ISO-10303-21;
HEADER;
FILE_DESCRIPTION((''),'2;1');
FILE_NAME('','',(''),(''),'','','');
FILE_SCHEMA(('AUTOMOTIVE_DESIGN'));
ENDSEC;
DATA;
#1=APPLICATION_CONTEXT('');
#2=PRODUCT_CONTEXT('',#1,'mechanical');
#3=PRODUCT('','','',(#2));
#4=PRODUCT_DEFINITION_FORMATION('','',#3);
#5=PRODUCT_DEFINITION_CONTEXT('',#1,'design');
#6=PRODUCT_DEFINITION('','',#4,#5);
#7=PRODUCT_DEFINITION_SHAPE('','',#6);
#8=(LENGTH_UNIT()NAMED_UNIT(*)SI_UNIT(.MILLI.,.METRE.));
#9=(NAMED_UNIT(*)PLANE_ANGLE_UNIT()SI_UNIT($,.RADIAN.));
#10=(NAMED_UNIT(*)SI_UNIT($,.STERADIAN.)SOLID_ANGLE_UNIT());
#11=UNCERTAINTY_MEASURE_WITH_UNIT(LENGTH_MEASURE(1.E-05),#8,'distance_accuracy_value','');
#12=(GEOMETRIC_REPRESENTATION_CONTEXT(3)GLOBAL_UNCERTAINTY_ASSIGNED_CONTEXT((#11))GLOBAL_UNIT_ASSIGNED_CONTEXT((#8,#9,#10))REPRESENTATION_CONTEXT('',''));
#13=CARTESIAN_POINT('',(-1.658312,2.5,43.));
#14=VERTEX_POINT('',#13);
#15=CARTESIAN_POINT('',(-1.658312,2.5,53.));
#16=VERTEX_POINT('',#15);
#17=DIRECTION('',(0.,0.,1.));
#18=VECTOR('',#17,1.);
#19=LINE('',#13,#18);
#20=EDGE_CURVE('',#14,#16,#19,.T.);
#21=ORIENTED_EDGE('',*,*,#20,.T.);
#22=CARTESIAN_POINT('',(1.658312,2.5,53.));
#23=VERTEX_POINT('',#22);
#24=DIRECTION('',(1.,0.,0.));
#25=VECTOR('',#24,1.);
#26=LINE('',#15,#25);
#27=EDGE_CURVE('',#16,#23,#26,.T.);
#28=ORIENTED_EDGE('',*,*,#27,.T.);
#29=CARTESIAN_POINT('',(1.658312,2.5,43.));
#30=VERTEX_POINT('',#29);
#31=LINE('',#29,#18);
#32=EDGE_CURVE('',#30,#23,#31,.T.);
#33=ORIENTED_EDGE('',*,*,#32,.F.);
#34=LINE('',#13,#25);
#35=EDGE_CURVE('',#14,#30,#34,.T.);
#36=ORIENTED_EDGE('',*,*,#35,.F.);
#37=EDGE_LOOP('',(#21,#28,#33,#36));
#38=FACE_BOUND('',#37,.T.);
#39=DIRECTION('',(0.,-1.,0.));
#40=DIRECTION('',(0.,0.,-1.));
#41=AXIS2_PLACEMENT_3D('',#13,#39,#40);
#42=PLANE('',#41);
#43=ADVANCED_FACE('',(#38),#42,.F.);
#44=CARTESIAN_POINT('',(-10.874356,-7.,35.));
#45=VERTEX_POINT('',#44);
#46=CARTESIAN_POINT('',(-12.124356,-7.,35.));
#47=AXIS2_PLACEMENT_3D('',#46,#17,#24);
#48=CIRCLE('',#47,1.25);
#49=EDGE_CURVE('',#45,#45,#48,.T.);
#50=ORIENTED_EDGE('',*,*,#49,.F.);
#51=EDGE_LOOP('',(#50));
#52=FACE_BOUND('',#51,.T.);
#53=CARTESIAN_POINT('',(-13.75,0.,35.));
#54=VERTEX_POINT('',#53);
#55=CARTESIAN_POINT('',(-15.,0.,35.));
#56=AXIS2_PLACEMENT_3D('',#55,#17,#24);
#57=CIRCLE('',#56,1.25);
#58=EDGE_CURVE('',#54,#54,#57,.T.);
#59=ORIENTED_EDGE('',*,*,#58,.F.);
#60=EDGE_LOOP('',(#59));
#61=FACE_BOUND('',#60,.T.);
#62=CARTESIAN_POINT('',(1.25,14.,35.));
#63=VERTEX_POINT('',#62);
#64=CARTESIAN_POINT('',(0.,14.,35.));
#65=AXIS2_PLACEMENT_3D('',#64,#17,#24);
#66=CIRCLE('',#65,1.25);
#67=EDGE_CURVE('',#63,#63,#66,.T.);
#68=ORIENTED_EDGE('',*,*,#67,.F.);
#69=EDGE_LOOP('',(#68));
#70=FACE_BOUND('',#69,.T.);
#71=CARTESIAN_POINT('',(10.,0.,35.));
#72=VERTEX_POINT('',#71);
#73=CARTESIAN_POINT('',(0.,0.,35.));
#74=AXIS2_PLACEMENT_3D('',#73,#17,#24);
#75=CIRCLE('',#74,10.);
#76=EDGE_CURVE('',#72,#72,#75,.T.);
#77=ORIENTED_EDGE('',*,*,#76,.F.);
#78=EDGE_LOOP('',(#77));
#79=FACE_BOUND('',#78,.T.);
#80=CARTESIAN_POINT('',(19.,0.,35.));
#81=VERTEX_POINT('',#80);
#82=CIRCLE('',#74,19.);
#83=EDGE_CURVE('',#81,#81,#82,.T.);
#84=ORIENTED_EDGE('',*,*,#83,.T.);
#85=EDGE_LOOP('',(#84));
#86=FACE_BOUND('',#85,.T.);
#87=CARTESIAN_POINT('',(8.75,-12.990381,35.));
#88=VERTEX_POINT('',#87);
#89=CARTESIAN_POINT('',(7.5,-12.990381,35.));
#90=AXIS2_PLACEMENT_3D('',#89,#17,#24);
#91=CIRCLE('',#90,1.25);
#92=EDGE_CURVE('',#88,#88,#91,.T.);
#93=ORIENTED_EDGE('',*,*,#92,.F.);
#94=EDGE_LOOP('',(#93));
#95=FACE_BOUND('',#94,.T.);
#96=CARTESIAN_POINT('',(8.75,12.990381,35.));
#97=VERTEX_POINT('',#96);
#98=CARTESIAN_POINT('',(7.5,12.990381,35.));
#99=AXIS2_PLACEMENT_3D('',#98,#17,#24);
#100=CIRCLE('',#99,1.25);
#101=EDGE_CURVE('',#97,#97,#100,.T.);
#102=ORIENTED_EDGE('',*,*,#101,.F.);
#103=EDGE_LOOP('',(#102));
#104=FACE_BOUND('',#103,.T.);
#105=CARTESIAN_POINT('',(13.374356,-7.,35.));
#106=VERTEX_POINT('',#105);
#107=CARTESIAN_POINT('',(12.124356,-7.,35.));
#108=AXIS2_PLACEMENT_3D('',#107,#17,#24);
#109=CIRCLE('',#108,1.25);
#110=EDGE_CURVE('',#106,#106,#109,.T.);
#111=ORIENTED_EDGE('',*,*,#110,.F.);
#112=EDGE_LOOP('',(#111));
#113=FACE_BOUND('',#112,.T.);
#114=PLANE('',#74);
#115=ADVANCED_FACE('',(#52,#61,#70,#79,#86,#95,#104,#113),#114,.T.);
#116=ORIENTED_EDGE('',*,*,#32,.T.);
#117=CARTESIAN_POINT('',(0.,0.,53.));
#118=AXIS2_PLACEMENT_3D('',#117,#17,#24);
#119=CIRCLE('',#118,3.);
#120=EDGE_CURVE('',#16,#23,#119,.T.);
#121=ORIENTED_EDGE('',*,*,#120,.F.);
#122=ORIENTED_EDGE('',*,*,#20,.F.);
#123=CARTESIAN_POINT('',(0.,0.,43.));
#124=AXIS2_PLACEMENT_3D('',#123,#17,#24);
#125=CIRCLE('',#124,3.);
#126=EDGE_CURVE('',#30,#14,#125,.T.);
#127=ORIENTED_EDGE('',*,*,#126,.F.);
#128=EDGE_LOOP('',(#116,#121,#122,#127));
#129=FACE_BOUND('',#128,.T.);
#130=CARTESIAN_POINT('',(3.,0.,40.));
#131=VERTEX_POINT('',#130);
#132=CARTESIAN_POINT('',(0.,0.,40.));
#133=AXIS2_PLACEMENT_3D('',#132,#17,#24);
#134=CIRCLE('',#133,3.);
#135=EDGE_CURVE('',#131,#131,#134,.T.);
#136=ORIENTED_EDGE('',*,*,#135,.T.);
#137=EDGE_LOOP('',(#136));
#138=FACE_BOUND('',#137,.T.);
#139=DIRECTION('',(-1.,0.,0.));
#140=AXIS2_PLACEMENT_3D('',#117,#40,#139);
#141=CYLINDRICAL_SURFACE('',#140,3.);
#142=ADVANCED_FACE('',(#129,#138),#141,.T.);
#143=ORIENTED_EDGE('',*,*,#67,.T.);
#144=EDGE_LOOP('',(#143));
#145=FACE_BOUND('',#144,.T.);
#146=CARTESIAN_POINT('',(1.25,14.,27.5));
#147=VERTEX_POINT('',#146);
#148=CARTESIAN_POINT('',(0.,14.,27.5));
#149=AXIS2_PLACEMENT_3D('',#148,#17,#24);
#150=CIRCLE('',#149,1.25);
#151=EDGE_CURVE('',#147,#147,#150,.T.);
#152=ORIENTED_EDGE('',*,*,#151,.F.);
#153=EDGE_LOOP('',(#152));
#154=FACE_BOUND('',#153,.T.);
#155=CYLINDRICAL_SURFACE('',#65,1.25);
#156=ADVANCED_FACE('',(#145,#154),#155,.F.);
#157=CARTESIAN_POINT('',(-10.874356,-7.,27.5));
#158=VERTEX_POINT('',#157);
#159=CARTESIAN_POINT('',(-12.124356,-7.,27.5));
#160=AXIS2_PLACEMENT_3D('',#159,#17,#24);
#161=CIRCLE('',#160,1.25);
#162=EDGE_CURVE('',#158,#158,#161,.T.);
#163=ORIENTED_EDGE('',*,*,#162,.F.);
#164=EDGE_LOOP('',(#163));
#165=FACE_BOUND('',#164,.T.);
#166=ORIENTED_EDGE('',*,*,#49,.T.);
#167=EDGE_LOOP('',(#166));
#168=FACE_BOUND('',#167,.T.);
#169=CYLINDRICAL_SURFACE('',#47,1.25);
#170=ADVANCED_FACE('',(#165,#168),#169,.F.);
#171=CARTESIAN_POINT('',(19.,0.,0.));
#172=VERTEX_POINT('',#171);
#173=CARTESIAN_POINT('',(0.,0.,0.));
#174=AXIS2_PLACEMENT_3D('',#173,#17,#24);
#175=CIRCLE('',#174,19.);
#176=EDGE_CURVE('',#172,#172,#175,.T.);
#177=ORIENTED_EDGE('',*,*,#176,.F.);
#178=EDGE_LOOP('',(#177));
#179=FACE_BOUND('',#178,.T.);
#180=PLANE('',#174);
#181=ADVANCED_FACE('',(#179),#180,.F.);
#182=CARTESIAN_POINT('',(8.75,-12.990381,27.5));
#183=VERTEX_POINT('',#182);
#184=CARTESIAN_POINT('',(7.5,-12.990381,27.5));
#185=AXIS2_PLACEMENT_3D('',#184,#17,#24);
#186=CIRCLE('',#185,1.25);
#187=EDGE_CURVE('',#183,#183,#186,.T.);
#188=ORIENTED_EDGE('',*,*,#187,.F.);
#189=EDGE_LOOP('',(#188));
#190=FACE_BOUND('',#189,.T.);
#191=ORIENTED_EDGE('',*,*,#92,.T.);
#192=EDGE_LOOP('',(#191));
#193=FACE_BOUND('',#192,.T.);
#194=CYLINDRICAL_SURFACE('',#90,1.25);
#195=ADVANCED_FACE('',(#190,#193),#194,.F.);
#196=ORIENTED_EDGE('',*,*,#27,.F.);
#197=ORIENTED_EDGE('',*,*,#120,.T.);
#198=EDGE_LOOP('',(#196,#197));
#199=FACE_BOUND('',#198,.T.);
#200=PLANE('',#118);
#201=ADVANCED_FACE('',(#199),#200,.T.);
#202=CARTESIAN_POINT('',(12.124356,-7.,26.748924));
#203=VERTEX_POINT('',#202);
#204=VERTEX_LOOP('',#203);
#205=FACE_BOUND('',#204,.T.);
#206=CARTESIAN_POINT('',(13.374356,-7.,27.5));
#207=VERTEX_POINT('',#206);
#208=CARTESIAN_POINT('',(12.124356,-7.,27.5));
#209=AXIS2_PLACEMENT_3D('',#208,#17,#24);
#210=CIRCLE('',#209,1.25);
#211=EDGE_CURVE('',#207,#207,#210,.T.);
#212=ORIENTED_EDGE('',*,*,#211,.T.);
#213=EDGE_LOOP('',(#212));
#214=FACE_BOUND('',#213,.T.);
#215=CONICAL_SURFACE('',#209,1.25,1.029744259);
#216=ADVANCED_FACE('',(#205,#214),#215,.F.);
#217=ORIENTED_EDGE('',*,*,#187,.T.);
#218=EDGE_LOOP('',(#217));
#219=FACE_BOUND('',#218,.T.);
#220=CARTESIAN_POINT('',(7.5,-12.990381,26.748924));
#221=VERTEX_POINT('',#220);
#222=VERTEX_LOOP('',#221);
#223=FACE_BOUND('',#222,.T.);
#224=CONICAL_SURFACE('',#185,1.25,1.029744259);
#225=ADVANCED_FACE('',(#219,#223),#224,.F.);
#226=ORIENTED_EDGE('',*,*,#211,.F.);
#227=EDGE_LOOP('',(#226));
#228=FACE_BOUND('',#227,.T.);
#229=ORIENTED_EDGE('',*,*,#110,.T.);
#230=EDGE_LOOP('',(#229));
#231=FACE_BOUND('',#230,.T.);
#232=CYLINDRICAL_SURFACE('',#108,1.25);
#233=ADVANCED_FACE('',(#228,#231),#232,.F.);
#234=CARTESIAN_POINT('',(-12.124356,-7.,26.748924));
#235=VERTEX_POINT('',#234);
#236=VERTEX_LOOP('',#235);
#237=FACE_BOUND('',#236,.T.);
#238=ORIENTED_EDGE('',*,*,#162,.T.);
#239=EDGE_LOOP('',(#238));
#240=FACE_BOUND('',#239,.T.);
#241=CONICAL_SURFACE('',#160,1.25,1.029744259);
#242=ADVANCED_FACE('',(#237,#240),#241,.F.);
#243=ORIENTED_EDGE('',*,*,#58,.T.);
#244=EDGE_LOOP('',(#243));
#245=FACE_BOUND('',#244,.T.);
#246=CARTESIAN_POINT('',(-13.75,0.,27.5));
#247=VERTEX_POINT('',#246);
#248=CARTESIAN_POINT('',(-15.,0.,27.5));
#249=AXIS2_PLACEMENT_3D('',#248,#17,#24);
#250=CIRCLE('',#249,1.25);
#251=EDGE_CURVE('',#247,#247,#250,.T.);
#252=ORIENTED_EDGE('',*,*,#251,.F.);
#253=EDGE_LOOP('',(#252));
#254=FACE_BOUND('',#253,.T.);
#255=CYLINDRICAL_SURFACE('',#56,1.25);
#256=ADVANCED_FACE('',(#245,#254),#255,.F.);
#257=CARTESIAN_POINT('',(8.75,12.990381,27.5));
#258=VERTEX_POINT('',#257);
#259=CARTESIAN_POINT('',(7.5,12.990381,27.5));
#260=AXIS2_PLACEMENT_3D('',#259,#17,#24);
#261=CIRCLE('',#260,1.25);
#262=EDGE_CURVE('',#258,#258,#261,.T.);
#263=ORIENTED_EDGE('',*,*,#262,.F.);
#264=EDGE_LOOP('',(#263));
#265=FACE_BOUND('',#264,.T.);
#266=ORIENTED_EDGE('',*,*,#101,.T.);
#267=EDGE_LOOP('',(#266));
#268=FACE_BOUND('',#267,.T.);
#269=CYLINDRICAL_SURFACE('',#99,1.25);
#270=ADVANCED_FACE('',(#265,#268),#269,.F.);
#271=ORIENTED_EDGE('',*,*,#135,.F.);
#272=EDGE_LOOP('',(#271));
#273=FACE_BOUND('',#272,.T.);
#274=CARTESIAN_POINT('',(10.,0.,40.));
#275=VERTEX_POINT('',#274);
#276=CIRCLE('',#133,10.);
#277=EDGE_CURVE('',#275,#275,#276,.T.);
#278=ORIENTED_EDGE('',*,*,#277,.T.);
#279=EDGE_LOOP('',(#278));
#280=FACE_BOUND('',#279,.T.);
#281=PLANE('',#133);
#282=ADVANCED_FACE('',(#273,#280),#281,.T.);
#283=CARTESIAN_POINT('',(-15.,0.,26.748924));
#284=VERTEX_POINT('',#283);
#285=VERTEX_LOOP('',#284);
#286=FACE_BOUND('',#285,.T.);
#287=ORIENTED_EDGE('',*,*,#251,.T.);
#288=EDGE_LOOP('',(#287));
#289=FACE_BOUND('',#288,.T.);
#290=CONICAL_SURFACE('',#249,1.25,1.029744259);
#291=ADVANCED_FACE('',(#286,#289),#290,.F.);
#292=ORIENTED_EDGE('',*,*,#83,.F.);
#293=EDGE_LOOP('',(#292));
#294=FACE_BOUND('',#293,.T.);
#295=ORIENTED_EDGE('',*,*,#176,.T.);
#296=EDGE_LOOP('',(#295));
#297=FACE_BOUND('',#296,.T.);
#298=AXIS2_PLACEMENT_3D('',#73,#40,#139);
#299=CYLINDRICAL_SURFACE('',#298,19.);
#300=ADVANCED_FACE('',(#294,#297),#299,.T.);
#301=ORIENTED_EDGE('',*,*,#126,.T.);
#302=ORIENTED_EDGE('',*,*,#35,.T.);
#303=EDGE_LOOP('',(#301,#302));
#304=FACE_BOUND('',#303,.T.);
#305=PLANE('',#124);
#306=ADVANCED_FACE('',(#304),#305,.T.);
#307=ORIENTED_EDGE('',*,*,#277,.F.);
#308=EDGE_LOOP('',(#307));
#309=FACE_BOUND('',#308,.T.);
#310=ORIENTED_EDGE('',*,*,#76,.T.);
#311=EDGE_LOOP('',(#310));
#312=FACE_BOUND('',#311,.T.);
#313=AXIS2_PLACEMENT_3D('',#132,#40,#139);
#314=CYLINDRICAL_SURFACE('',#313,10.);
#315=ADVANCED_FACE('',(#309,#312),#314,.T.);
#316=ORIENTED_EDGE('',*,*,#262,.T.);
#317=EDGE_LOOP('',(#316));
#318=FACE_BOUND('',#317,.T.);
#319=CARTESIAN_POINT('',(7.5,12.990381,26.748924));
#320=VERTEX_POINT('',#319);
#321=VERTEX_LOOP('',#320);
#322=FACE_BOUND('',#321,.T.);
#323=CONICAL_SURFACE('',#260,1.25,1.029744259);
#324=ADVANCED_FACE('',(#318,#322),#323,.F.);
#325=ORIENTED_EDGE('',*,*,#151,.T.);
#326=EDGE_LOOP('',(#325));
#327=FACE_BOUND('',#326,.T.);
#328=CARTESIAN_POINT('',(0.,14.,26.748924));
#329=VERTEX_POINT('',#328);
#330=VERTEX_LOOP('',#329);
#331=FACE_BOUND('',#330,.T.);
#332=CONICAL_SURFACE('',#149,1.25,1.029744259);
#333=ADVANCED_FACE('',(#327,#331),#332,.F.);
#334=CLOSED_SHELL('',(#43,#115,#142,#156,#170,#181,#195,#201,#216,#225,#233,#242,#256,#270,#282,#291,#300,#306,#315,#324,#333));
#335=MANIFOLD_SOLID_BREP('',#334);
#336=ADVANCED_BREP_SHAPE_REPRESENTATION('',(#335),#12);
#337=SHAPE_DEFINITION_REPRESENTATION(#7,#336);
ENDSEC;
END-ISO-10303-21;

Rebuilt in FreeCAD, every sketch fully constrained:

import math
import FreeCAD as App
import Part
import Sketcher
from FreeCAD import Vector
Q = App.Units.Quantity

doc = App.newDocument("Part")
body = doc.addObject("PartDesign::Body", "Body")

# Sketch on XY plane
sketch1 = body.newObject("Sketcher::SketchObject", "Sketch")
sketch1.AttachmentSupport = (doc.getObject("XY_Plane"), [""])
sketch1.MapMode = "FlatFace"
sketch1.addGeometry(Part.Circle(Vector(0, 0, 0), Vector(0, 0, 1), 19), False)
sketch1.addConstraint([
    Sketcher.Constraint("Coincident", 0, 3, -1, 1),
    Sketcher.Constraint("Diameter", 0, Q("38 mm")),
])
pad1 = body.newObject("PartDesign::Pad", "Pad")
pad1.Profile = sketch1
pad1.Length = 35

# Sketch on XY plane
sketch2 = body.newObject("Sketcher::SketchObject", "Sketch001")
sketch2.AttachmentSupport = (doc.getObject("XY_Plane"), [""])
sketch2.MapMode = "FlatFace"
sketch2.AttachmentOffset = App.Placement(Vector(0, 0, 35), App.Rotation())
sketch2.addGeometry(Part.Circle(Vector(0, 0, 0), Vector(0, 0, 1), 10), False)
sketch2.addConstraint([
    Sketcher.Constraint("Coincident", 0, 3, -1, 1),
    Sketcher.Constraint("Diameter", 0, Q("20 mm")),
])
pad2 = body.newObject("PartDesign::Pad", "Pad001")
pad2.Profile = sketch2
pad2.Length = 5

# Sketch on XY plane
sketch3 = body.newObject("Sketcher::SketchObject", "Sketch002")
sketch3.AttachmentSupport = (doc.getObject("XY_Plane"), [""])
sketch3.MapMode = "FlatFace"
sketch3.AttachmentOffset = App.Placement(Vector(0, 0, 40), App.Rotation())
sketch3.addGeometry(Part.Circle(Vector(0, 0, 0), Vector(0, 0, 1), 3), False)
sketch3.addConstraint([
    Sketcher.Constraint("Coincident", 0, 3, -1, 1),
    Sketcher.Constraint("Diameter", 0, Q("6 mm")),
])
pad3 = body.newObject("PartDesign::Pad", "Pad002")
pad3.Profile = sketch3
pad3.Length = 13

# Sketch on XY plane
sketch4 = body.newObject("Sketcher::SketchObject", "Sketch003")
sketch4.AttachmentSupport = (doc.getObject("XY_Plane"), [""])
sketch4.MapMode = "FlatFace"
sketch4.AttachmentOffset = App.Placement(Vector(0, 0, 43), App.Rotation())
sketch4.addGeometry([
    Part.LineSegment(Vector(-1.658312, 2.5, 0), Vector(1.658312, 2.5, 0)),
    Part.ArcOfCircle(Part.Circle(Vector(0, 0, 0), Vector(0, 0, 1), 3), math.radians(56.44269), math.radians(123.55731)),
], False)
sketch4.addConstraint([
    Sketcher.Constraint("Coincident", 0, 1, 1, 2),
    Sketcher.Constraint("Coincident", 1, 1, 0, 2),
    Sketcher.Constraint("Horizontal", 0),
    Sketcher.Constraint("Coincident", 1, 3, -1, 1),
    Sketcher.Constraint("Radius", 1, Q("3 mm")),
    Sketcher.Constraint("DistanceY", -1, 1, 0, 1, Q("2.5 mm")),
])
pocket1 = body.newObject("PartDesign::Pocket", "Pocket")
pocket1.Profile = sketch4
pocket1.Length = 10
pocket1.Reversed = True

# Sketch on XY plane
sketch5 = body.newObject("Sketcher::SketchObject", "Sketch004")
sketch5.AttachmentSupport = (doc.getObject("XY_Plane"), [""])
sketch5.MapMode = "FlatFace"
sketch5.AttachmentOffset = App.Placement(Vector(0, 0, 35), App.Rotation())
sketch5.addGeometry([
    Part.Circle(Vector(0, 14, 0), Vector(0, 0, 1), 1.25),  # 0
    Part.Circle(Vector(7.5, 12.990381, 0), Vector(0, 0, 1), 1.25),  # 1
    Part.Circle(Vector(12.124356, -7, 0), Vector(0, 0, 1), 1.25),  # 2
    Part.Circle(Vector(7.5, -12.990381, 0), Vector(0, 0, 1), 1.25),  # 3
    Part.Circle(Vector(-12.124356, -7, 0), Vector(0, 0, 1), 1.25),  # 4
    Part.Circle(Vector(-15, 0, 0), Vector(0, 0, 1), 1.25),  # 5
], False)
sketch5.addConstraint([
    Sketcher.Constraint("Equal", 0, 1),
    Sketcher.Constraint("Equal", 1, 2),
    Sketcher.Constraint("Equal", 2, 3),
    Sketcher.Constraint("Equal", 3, 4),
    Sketcher.Constraint("Equal", 4, 5),
    Sketcher.Constraint("Symmetric", 2, 3, 4, 3, -2),
    Sketcher.Constraint("Symmetric", 1, 3, 3, 3, -1),
    Sketcher.Constraint("PointOnObject", 0, 3, -2),
    Sketcher.Constraint("PointOnObject", 5, 3, -1),
    Sketcher.Constraint("Diameter", 0, Q("2.5 mm")),
    Sketcher.Constraint("DistanceY", -1, 1, 0, 3, Q("14 mm")),
    Sketcher.Constraint("DistanceY", 2, 3, -1, 1, Q("7 mm")),
    Sketcher.Constraint("DistanceX", 5, 3, -1, 1, Q("15 mm")),
    Sketcher.Constraint("DistanceX", -1, 1, 1, 3, Q("7.5 mm")),
    Sketcher.Constraint("DistanceY", -1, 1, 1, 3, Q("12.990381 mm")),
    Sketcher.Constraint("DistanceX", 4, 3, 2, 3, Q("24.248711 mm")),
])
doc.recompute()
hole = body.newObject("PartDesign::Hole", "Hole")
hole.Profile = sketch5
hole.ThreadType = "None"
hole.Diameter = 2.5
hole.DepthType = "Dimension"
hole.Depth = 7.5
hole.DrillPoint = "Angled"
hole.DrillPointAngle = 118

doc.recompute()
